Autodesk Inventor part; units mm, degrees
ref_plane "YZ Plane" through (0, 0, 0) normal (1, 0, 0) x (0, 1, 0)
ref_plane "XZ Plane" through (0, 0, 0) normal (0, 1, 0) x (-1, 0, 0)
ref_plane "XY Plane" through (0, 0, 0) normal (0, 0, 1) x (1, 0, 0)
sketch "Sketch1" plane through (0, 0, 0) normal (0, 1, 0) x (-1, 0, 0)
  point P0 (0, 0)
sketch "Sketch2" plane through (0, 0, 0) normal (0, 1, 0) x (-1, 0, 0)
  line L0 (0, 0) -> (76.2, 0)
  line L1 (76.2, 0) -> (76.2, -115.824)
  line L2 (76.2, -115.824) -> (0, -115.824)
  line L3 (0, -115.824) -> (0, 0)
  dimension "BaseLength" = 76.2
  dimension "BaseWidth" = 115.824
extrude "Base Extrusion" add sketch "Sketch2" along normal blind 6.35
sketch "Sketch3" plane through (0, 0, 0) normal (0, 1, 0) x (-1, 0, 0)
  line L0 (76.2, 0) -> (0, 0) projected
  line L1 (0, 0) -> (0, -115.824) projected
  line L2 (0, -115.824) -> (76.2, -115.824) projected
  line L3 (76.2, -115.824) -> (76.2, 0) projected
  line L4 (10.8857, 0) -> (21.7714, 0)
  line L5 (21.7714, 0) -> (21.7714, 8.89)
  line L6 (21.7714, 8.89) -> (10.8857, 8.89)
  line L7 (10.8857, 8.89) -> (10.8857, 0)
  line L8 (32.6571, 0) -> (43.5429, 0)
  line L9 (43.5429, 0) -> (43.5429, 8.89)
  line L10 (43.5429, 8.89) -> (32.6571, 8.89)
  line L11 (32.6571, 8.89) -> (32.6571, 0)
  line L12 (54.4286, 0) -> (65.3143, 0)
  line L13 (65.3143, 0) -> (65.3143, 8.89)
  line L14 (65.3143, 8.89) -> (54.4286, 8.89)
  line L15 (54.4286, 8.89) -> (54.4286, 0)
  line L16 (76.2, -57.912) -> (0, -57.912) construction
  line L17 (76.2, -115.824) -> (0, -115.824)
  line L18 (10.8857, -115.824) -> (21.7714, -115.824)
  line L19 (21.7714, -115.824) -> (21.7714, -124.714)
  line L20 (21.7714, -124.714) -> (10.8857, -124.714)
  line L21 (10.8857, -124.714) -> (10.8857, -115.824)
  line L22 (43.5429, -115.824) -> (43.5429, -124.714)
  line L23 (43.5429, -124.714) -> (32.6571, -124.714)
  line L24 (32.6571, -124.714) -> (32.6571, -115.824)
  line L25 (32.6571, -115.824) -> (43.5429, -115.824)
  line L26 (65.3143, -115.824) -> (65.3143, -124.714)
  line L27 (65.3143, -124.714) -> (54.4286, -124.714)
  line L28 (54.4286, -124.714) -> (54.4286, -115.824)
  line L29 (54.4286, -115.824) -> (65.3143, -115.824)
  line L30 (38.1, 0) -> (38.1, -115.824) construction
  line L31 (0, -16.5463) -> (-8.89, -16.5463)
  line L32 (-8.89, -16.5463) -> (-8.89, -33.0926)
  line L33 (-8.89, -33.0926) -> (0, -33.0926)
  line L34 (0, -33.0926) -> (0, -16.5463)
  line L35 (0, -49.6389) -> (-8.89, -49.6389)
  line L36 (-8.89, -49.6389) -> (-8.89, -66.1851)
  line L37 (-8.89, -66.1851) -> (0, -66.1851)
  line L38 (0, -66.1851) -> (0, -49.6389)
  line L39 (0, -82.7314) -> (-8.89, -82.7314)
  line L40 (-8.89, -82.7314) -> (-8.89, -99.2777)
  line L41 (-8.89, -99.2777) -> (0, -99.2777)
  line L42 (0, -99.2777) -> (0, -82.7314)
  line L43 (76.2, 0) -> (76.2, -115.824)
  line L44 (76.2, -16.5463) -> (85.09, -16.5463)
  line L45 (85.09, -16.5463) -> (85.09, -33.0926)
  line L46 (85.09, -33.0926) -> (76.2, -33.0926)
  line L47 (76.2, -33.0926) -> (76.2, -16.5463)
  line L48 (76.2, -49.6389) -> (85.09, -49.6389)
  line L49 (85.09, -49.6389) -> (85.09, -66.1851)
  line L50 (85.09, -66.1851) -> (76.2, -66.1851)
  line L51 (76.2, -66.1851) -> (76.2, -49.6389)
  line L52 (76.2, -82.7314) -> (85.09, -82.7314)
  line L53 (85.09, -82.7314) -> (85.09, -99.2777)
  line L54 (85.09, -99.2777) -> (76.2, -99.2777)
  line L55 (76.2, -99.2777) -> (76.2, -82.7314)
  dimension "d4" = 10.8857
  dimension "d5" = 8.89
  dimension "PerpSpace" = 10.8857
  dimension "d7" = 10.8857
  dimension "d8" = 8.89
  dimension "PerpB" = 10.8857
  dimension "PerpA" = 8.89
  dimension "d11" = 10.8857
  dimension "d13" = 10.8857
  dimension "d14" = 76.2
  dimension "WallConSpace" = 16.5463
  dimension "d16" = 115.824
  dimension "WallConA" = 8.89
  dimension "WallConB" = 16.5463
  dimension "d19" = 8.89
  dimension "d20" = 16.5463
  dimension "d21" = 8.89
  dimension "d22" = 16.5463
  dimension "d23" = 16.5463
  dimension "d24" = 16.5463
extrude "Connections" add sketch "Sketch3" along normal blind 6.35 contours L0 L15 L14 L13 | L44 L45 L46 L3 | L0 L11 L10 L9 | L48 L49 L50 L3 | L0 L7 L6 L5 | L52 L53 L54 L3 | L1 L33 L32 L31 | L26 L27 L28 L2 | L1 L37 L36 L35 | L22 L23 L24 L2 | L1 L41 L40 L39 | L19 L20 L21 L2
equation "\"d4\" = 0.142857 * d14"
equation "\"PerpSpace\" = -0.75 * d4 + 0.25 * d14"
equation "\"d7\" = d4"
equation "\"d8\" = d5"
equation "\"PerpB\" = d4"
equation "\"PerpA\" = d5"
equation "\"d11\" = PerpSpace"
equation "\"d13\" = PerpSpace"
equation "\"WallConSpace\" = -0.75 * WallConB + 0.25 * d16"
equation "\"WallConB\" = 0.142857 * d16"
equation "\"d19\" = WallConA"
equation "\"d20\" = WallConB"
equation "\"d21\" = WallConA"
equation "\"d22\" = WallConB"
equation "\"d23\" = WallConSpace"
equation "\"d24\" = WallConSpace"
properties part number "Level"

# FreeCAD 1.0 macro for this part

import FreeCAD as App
import Part
import Sketcher

V = App.Vector
Q = App.Units.Quantity

doc = App.newDocument("Part")
body = doc.addObject("PartDesign::Body", "Body")

sketch1 = doc.addObject("Sketcher::SketchObject", "Sketch")
body.addObject(sketch1)
sketch1.AttachmentSupport = (doc.XZ_Plane, [""])
sketch1.MapMode = "FlatFace"
sketch1.addGeometry([
    Part.LineSegment(V(-76, 0, 0), V(0, 0, 0)),
    Part.LineSegment(V(0, 0, 0), V(0, -116, 0)),
    Part.LineSegment(V(0, -116, 0), V(-76, -116, 0)),
    Part.LineSegment(V(-76, -116, 0), V(-76, 0, 0)),
], False)
sketch1.addConstraint([
    Sketcher.Constraint("Coincident", 0, 2, 1, 1),
    Sketcher.Constraint("Coincident", 1, 2, 2, 1),
    Sketcher.Constraint("Coincident", 2, 2, 3, 1),
    Sketcher.Constraint("Coincident", 3, 2, 0, 1),
    Sketcher.Constraint("Horizontal", 0),
    Sketcher.Constraint("Vertical", 1),
    Sketcher.Constraint("Horizontal", 2),
    Sketcher.Constraint("Vertical", 3),
    Sketcher.Constraint("Coincident", 0, 2, -1, 1),
    Sketcher.Constraint("DistanceX", 0, 1, 0, 2, Q("3 in")),
    Sketcher.Constraint("DistanceY", 1, 2, 1, 1, Q("4.56 in")),
])
pad1 = doc.addObject("PartDesign::Pad", "Pad")
body.addObject(pad1)
pad1.Profile = sketch1
pad1.Length = Q("0.25 in")
pad1.Reversed = True

sketch2 = doc.addObject("Sketcher::SketchObject", "Sketch001")
body.addObject(sketch2)
sketch2.AttachmentSupport = (doc.XZ_Plane, [""])
sketch2.MapMode = "FlatFace"
sketch2.addGeometry([
    Part.LineSegment(V(-54, 0, 0), V(-65, 0, 0)),
    Part.LineSegment(V(-65, 0, 0), V(-65, 9, 0)),
    Part.LineSegment(V(-65, 9, 0), V(-54, 9, 0)),
    Part.LineSegment(V(-54, 9, 0), V(-54, 0, 0)),
    Part.LineSegment(V(-85, -17, 0), V(-76, -17, 0)),
    Part.LineSegment(V(-76, -17, 0), V(-76, -33, 0)),
    Part.LineSegment(V(-76, -33, 0), V(-85, -33, 0)),
    Part.LineSegment(V(-85, -33, 0), V(-85, -17, 0)),
    Part.LineSegment(V(-33, 0, 0), V(-44, 0, 0)),
    Part.LineSegment(V(-44, 0, 0), V(-44, 9, 0)),
    Part.LineSegment(V(-44, 9, 0), V(-33, 9, 0)),
    Part.LineSegment(V(-33, 9, 0), V(-33, 0, 0)),
    Part.LineSegment(V(-85, -50, 0), V(-76, -50, 0)),
    Part.LineSegment(V(-76, -50, 0), V(-76, -66, 0)),
    Part.LineSegment(V(-76, -66, 0), V(-85, -66, 0)),
    Part.LineSegment(V(-85, -66, 0), V(-85, -50, 0)),
    Part.LineSegment(V(-11, 0, 0), V(-22, 0, 0)),
    Part.LineSegment(V(-22, 0, 0), V(-22, 9, 0)),
    Part.LineSegment(V(-22, 9, 0), V(-11, 9, 0)),
    Part.LineSegment(V(-11, 9, 0), V(-11, 0, 0)),
    Part.LineSegment(V(-85, -83, 0), V(-76, -83, 0)),
    Part.LineSegment(V(-76, -83, 0), V(-76, -99, 0)),
    Part.LineSegment(V(-76, -99, 0), V(-85, -99, 0)),
    Part.LineSegment(V(-85, -99, 0), V(-85, -83, 0)),
    Part.LineSegment(V(0, -33, 0), V(0, -17, 0)),
    Part.LineSegment(V(0, -17, 0), V(9, -17, 0)),
    Part.LineSegment(V(9, -17, 0), V(9, -33, 0)),
    Part.LineSegment(V(9, -33, 0), V(0, -33, 0)),
    Part.LineSegment(V(-65, -125, 0), V(-65, -116, 0)),
    Part.LineSegment(V(-65, -116, 0), V(-54, -116, 0)),
    Part.LineSegment(V(-54, -116, 0), V(-54, -125, 0)),
    Part.LineSegment(V(-54, -125, 0), V(-65, -125, 0)),
    Part.LineSegment(V(0, -66, 0), V(0, -50, 0)),
    Part.LineSegment(V(0, -50, 0), V(9, -50, 0)),
    Part.LineSegment(V(9, -50, 0), V(9, -66, 0)),
    Part.LineSegment(V(9, -66, 0), V(0, -66, 0)),
    Part.LineSegment(V(-44, -125, 0), V(-44, -116, 0)),
    Part.LineSegment(V(-44, -116, 0), V(-33, -116, 0)),
    Part.LineSegment(V(-33, -116, 0), V(-33, -125, 0)),
    Part.LineSegment(V(-33, -125, 0), V(-44, -125, 0)),
    Part.LineSegment(V(0, -99, 0), V(0, -83, 0)),
    Part.LineSegment(V(0, -83, 0), V(9, -83, 0)),
    Part.LineSegment(V(9, -83, 0), V(9, -99, 0)),
    Part.LineSegment(V(9, -99, 0), V(0, -99, 0)),
    Part.LineSegment(V(-22, -125, 0), V(-22, -116, 0)),
    Part.LineSegment(V(-22, -116, 0), V(-11, -116, 0)),
    Part.LineSegment(V(-11, -116, 0), V(-11, -125, 0)),
    Part.LineSegment(V(-11, -125, 0), V(-22, -125, 0)),
], False)
sketch2.addConstraint([
    Sketcher.Constraint("Coincident", 0, 2, 1, 1),
    Sketcher.Constraint("Coincident", 1, 2, 2, 1),
    Sketcher.Constraint("Coincident", 2, 2, 3, 1),
    Sketcher.Constraint("Coincident", 3, 2, 0, 1),
    Sketcher.Constraint("Coincident", 4, 2, 5, 1),
    Sketcher.Constraint("Coincident", 5, 2, 6, 1),
    Sketcher.Constraint("Coincident", 6, 2, 7, 1),
    Sketcher.Constraint("Coincident", 7, 2, 4, 1),
    Sketcher.Constraint("Coincident", 8, 2, 9, 1),
    Sketcher.Constraint("Coincident", 9, 2, 10, 1),
    Sketcher.Constraint("Coincident", 10, 2, 11, 1),
    Sketcher.Constraint("Coincident", 11, 2, 8, 1),
    Sketcher.Constraint("Coincident", 12, 2, 13, 1),
    Sketcher.Constraint("Coincident", 13, 2, 14, 1),
    Sketcher.Constraint("Coincident", 14, 2, 15, 1),
    Sketcher.Constraint("Coincident", 15, 2, 12, 1),
    Sketcher.Constraint("Coincident", 16, 2, 17, 1),
    Sketcher.Constraint("Coincident", 17, 2, 18, 1),
    Sketcher.Constraint("Coincident", 18, 2, 19, 1),
    Sketcher.Constraint("Coincident", 19, 2, 16, 1),
    Sketcher.Constraint("Coincident", 20, 2, 21, 1),
    Sketcher.Constraint("Coincident", 21, 2, 22, 1),
    Sketcher.Constraint("Coincident", 22, 2, 23, 1),
    Sketcher.Constraint("Coincident", 23, 2, 20, 1),
    Sketcher.Constraint("Coincident", 24, 2, 25, 1),
    Sketcher.Constraint("Coincident", 25, 2, 26, 1),
    Sketcher.Constraint("Coincident", 26, 2, 27, 1),
    Sketcher.Constraint("Coincident", 27, 2, 24, 1),
    Sketcher.Constraint("Coincident", 28, 2, 29, 1),
    Sketcher.Constraint("Coincident", 29, 2, 30, 1),
    Sketcher.Constraint("Coincident", 30, 2, 31, 1),
    Sketcher.Constraint("Coincident", 31, 2, 28, 1),
    Sketcher.Constraint("Coincident", 32, 2, 33, 1),
    Sketcher.Constraint("Coincident", 33, 2, 34, 1),
    Sketcher.Constraint("Coincident", 34, 2, 35, 1),
    Sketcher.Constraint("Coincident", 35, 2, 32, 1),
    Sketcher.Constraint("Coincident", 36, 2, 37, 1),
    Sketcher.Constraint("Coincident", 37, 2, 38, 1),
    Sketcher.Constraint("Coincident", 38, 2, 39, 1),
    Sketcher.Constraint("Coincident", 39, 2, 36, 1),
    Sketcher.Constraint("Coincident", 40, 2, 41, 1),
    Sketcher.Constraint("Coincident", 41, 2, 42, 1),
    Sketcher.Constraint("Coincident", 42, 2, 43, 1),
    Sketcher.Constraint("Coincident", 43, 2, 40, 1),
    Sketcher.Constraint("Coincident", 44, 2, 45, 1),
    Sketcher.Constraint("Coincident", 45, 2, 46, 1),
    Sketcher.Constraint("Coincident", 46, 2, 47, 1),
    Sketcher.Constraint("Coincident", 47, 2, 44, 1),
    Sketcher.Constraint("Horizontal", 0),
    Sketcher.Constraint("Vertical", 1),
    Sketcher.Constraint("Horizontal", 2),
    Sketcher.Constraint("Vertical", 3),
    Sketcher.Constraint("Horizontal", 4),
    Sketcher.Constraint("Vertical", 5),
    Sketcher.Constraint("Horizontal", 6),
    Sketcher.Constraint("Vertical", 7),
    Sketcher.Constraint("Horizontal", 8),
    Sketcher.Constraint("Vertical", 9),
    Sketcher.Constraint("Horizontal", 10),
    Sketcher.Constraint("Vertical", 11),
    Sketcher.Constraint("Horizontal", 12),
    Sketcher.Constraint("Vertical", 13),
    Sketcher.Constraint("Horizontal", 14),
    Sketcher.Constraint("Vertical", 15),
    Sketcher.Constraint("Horizontal", 16),
    Sketcher.Constraint("Vertical", 17),
    Sketcher.Constraint("Horizontal", 18),
    Sketcher.Constraint("Vertical", 19),
    Sketcher.Constraint("Horizontal", 20),
    Sketcher.Constraint("Vertical", 21),
    Sketcher.Constraint("Horizontal", 22),
    Sketcher.Constraint("Vertical", 23),
    Sketcher.Constraint("Vertical", 24),
    Sketcher.Constraint("Horizontal", 25),
    Sketcher.Constraint("Vertical", 26),
    Sketcher.Constraint("Horizontal", 27),
    Sketcher.Constraint("Vertical", 28),
    Sketcher.Constraint("Horizontal", 29),
    Sketcher.Constraint("Vertical", 30),
    Sketcher.Constraint("Horizontal", 31),
    Sketcher.Constraint("Vertical", 32),
    Sketcher.Constraint("Horizontal", 33),
    Sketcher.Constraint("Vertical", 34),
    Sketcher.Constraint("Horizontal", 35),
    Sketcher.Constraint("Vertical", 36),
    Sketcher.Constraint("Horizontal", 37),
    Sketcher.Constraint("Vertical", 38),
    Sketcher.Constraint("Horizontal", 39),
    Sketcher.Constraint("Vertical", 40),
    Sketcher.Constraint("Horizontal", 41),
    Sketcher.Constraint("Vertical", 42),
    Sketcher.Constraint("Horizontal", 43),
    Sketcher.Constraint("Vertical", 44),
    Sketcher.Constraint("Horizontal", 45),
    Sketcher.Constraint("Vertical", 46),
    Sketcher.Constraint("Horizontal", 47),
    Sketcher.Constraint("PointOnObject", 0, 2, -1),
    Sketcher.Constraint("PointOnObject", 8, 2, -1),
    Sketcher.Constraint("PointOnObject", 16, 2, -1),
    Sketcher.Constraint("PointOnObject", 24, 2, -2),
    Sketcher.Constraint("PointOnObject", 32, 2, -2),
    Sketcher.Constraint("PointOnObject", 40, 2, -2),
    Sketcher.Constraint("Horizontal", 2, 2, 9, 2),
    Sketcher.Constraint("Horizontal", 10, 2, 17, 2),
    Sketcher.Constraint("Horizontal", 7, 2, 24, 2),
    Sketcher.Constraint("Horizontal", 6, 2, 26, 2),
    Sketcher.Constraint("Horizontal", 15, 2, 32, 2),
    Sketcher.Constraint("Horizontal", 14, 2, 34, 2),
    Sketcher.Constraint("Horizontal", 29, 2, 36, 2),
    Sketcher.Constraint("Horizontal", 31, 2, 38, 2),
    Sketcher.Constraint("Horizontal", 23, 2, 40, 2),
    Sketcher.Constraint("Horizontal", 22, 2, 42, 2),
    Sketcher.Constraint("Horizontal", 37, 2, 44, 2),
    Sketcher.Constraint("Horizontal", 39, 2, 46, 2),
    Sketcher.Constraint("Vertical", 5, 2, 12, 2),
    Sketcher.Constraint("Vertical", 7, 2, 14, 2),
    Sketcher.Constraint("Vertical", 13, 2, 20, 2),
    Sketcher.Constraint("Vertical", 15, 2, 22, 2),
    Sketcher.Constraint("Vertical", 1, 2, 28, 2),
    Sketcher.Constraint("Vertical", 3, 2, 29, 2),
    Sketcher.Constraint("Vertical", 26, 2, 33, 2),
    Sketcher.Constraint("Vertical", 9, 2, 36, 2),
    Sketcher.Constraint("Vertical", 11, 2, 37, 2),
    Sketcher.Constraint("Vertical", 34, 2, 41, 2),
    Sketcher.Constraint("Vertical", 17, 2, 44, 2),
    Sketcher.Constraint("Vertical", 19, 2, 45, 2),
    Sketcher.Constraint("Equal", 2, 8),
    Sketcher.Constraint("Equal", 10, 16),
    Sketcher.Constraint("Equal", 22, 25),
    Sketcher.Constraint("Equal", 43, 1),
    Sketcher.Constraint("Equal", 7, 13),
    Sketcher.Constraint("Equal", 15, 21),
    Sketcher.Constraint("Equal", 19, 28),
    Sketcher.Constraint("DistanceX", 4, 2, -1, 1, Q("3 in")),
    Sketcher.Constraint("DistanceX", 4, 1, 4, 2, Q("0.35 in")),
    Sketcher.Constraint("DistanceY", 28, 2, -1, 1, Q("4.56 in")),
    Sketcher.Constraint("DistanceX", 0, 2, 0, 1, Q("10.8857 mm")),
    Sketcher.Constraint("DistanceY", 5, 2, 5, 1, Q("16.5463 mm")),
    Sketcher.Constraint("DistanceY", 4, 2, -1, 1, Q("16.5463 mm")),
    Sketcher.Constraint("DistanceX", 18, 2, -1, 1, Q("10.8857 mm")),
    Sketcher.Constraint("DistanceX", 4, 2, 0, 2, Q("10.8857 mm")),
    Sketcher.Constraint("DistanceX", 3, 2, 8, 2, Q("10.8857 mm")),
    Sketcher.Constraint("DistanceY", 12, 2, 5, 2, Q("16.5463 mm")),
    Sketcher.Constraint("DistanceY", 20, 2, 13, 2, Q("16.5463 mm")),
])
pad2 = doc.addObject("PartDesign::Pad", "Pad001")
body.addObject(pad2)
pad2.Profile = sketch2
pad2.Length = Q("0.25 in")
pad2.Reversed = True

doc.recompute()
